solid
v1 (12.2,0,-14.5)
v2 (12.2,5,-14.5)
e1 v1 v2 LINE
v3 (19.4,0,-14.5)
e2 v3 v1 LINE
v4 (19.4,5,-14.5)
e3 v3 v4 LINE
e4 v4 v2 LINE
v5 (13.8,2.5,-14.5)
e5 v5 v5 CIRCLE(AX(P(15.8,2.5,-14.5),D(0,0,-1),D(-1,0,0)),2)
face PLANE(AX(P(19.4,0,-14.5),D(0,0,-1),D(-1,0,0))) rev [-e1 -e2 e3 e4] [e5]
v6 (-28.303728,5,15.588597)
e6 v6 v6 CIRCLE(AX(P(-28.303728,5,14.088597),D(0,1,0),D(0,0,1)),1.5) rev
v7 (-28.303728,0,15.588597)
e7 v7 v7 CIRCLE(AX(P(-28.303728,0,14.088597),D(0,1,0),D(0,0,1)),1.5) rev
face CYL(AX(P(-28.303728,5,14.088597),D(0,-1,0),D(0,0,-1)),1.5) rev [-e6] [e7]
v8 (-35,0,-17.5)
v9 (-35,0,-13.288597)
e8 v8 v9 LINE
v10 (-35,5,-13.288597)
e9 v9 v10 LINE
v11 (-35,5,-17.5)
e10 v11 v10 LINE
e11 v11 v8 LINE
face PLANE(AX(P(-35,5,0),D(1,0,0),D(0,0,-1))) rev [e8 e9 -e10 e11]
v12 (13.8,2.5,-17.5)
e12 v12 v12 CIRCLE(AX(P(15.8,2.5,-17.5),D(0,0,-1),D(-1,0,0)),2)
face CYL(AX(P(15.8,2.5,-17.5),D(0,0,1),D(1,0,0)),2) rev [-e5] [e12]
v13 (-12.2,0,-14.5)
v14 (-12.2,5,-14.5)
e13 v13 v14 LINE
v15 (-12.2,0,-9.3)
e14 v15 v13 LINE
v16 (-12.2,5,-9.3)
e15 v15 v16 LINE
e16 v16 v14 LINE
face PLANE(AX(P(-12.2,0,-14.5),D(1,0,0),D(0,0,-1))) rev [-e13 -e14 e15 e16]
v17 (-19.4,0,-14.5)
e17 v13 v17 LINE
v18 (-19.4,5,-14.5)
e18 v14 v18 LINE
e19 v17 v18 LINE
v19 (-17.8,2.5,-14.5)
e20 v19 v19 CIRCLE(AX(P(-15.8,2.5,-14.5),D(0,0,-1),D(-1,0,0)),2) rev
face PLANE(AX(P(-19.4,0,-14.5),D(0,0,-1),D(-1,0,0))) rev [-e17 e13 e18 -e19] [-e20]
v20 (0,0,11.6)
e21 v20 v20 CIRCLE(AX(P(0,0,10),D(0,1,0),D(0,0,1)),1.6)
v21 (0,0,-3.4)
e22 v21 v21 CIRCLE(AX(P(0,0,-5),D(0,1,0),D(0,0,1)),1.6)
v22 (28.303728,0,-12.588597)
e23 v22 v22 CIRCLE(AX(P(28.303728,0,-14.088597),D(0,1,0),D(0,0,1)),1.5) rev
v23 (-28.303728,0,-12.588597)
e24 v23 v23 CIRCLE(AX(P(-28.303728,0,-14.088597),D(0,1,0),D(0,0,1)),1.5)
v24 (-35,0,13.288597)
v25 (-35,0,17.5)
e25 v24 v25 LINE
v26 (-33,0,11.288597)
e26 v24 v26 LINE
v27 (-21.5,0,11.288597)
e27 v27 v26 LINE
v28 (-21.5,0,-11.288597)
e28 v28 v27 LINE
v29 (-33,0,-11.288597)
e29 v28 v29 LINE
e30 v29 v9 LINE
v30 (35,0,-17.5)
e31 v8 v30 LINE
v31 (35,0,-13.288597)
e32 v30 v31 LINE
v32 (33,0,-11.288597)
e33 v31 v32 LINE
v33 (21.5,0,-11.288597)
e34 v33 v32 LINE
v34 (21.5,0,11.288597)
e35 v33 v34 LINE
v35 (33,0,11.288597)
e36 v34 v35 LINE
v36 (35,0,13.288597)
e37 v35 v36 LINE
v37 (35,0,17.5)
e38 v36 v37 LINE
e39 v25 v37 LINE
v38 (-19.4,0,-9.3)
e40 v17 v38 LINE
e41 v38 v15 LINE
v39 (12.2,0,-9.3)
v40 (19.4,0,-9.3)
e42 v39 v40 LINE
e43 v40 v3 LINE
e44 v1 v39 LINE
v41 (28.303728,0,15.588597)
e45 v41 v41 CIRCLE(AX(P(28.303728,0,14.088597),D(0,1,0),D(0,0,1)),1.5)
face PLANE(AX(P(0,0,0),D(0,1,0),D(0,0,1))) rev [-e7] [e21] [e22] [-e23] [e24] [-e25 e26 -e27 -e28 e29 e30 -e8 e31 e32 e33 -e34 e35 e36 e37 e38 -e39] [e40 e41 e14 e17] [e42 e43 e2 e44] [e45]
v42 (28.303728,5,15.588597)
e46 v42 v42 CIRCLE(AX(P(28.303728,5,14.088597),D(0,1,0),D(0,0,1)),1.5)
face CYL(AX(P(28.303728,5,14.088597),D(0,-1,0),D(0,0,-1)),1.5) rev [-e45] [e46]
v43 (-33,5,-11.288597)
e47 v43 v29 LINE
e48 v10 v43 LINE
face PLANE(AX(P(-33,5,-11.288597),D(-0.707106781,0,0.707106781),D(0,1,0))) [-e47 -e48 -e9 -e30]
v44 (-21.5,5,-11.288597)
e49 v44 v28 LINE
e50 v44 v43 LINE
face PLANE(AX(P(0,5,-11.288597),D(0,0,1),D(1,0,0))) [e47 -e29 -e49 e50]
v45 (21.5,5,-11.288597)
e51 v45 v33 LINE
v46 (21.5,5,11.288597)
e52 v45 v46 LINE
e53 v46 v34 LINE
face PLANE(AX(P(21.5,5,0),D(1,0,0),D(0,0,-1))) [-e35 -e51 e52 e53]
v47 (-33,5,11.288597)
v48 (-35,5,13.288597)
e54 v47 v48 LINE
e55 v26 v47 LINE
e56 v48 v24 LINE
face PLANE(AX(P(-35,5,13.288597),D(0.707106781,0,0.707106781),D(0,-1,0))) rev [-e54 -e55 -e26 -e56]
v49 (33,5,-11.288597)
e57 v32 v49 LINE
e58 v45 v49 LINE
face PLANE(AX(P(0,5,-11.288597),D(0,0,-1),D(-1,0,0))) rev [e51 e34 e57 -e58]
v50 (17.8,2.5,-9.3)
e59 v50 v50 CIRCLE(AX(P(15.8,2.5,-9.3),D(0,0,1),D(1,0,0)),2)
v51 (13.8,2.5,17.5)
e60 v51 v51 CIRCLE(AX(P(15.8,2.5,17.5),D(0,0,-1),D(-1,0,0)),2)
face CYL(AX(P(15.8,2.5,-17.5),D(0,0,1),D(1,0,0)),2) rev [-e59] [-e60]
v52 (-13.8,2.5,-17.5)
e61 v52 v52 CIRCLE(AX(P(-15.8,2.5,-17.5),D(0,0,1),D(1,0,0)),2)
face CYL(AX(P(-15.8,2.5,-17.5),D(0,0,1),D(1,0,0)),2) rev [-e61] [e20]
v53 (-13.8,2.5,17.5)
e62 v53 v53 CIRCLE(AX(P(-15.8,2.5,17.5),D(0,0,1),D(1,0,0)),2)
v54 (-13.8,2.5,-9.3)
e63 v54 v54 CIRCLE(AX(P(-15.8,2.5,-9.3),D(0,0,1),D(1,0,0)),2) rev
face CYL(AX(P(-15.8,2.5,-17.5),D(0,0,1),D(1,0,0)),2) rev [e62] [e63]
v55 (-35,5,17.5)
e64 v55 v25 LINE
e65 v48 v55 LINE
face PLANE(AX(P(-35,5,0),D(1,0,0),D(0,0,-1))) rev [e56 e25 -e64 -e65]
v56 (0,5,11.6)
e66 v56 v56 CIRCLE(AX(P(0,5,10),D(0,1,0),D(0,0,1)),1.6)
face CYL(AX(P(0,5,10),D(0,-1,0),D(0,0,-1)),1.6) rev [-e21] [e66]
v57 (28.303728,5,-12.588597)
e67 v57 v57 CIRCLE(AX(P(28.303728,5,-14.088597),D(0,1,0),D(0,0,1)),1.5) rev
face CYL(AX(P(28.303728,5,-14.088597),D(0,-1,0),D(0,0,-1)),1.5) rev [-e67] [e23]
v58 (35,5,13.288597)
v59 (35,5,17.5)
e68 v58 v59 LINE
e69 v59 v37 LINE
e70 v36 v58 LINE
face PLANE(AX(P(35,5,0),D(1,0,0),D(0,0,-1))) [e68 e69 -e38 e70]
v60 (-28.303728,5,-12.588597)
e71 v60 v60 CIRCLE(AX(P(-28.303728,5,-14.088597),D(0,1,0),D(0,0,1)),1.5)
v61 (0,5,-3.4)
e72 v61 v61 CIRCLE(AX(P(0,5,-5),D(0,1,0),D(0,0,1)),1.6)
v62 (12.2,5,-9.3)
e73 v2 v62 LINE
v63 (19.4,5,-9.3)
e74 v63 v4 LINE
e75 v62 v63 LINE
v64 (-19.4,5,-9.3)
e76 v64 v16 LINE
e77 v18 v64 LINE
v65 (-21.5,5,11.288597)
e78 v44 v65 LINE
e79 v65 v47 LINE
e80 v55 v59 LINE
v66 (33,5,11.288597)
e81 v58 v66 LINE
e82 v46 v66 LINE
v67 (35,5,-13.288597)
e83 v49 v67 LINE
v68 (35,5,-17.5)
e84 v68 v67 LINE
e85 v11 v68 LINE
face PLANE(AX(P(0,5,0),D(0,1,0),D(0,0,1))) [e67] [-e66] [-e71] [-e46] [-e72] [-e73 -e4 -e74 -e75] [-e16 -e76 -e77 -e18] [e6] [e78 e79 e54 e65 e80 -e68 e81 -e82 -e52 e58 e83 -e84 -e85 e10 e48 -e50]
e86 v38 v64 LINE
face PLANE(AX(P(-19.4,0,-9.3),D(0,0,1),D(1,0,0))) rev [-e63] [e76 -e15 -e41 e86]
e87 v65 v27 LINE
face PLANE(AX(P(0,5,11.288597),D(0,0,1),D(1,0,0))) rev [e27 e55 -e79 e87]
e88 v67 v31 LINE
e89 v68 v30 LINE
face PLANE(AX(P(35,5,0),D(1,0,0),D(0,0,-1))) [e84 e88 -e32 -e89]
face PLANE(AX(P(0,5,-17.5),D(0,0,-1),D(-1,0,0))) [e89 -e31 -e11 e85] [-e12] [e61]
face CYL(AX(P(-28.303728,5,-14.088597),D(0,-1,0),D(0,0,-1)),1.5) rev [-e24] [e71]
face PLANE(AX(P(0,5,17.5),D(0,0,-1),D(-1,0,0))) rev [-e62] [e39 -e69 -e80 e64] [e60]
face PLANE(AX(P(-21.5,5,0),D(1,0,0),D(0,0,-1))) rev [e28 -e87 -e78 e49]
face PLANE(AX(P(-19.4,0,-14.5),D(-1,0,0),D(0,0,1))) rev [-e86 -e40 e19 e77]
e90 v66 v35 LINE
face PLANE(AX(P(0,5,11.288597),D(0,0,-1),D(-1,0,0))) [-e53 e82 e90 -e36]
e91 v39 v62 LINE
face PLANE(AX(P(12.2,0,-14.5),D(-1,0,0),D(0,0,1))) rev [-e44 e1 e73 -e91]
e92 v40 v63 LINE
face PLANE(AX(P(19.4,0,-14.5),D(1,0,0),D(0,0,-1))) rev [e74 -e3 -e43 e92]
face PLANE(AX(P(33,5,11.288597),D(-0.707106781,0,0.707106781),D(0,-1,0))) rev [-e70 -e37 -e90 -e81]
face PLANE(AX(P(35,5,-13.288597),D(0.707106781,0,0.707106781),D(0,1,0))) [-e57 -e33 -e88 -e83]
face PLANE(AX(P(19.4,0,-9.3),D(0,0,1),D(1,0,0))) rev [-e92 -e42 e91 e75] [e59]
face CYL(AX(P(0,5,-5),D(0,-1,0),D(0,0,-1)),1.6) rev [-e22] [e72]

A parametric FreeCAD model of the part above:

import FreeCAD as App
import Part
import Sketcher


def edges_at(feature, points):
    """Names of the edges that pass closest to the given points."""
    edges = feature.Shape.Edges
    near = lambda p: min(range(len(edges)), key=lambda i: edges[i].distToShape(Part.Vertex(*p))[0])
    return sorted({f"Edge{near(p) + 1}" for p in points})


def add_polygon(sketch, points):
    """Adds a closed chain of lines whose ends are joined by coincident constraints."""
    first, n = sketch.GeometryCount, len(points)
    for a, b in zip(points, points[1:] + points[:1]):
        sketch.addGeometry(Part.LineSegment(App.Vector(*a, 0), App.Vector(*b, 0)), False)
    for i in range(n):
        sketch.addConstraint(Sketcher.Constraint("Coincident", first + i, 2, first + (i + 1) % n, 1))

doc = App.newDocument("Part")
params = doc.addObject("Spreadsheet::Sheet", "Params")
for row, (alias, value) in enumerate([
    ("sketch1_diameter", "3 mm"),
    ("sketch1_diameter2", "3.2 mm"),
    ("sketch1_width", "70 mm"),
    ("sketch1_width2", "13.5 mm"),
    ("pad1_length", "5 mm"),
    ("chamfer_size", "2 mm"),
    ("sketch2_diameter", "4 mm"),
    ("sketch3_width", "7.2 mm"),
    ("sketch3_height", "5.2 mm"),
], start=1):
    params.set(f"A{row}", alias)
    params.set(f"B{row}", "=" + value)
    params.setAlias(f"B{row}", alias)

body = doc.addObject("PartDesign::Body", "Body")

sketch1 = body.newObject("Sketcher::SketchObject", "Sketch")
sketch1.AttachmentSupport = (doc.getObject("XZ_Plane"), [""])
sketch1.MapMode = "FlatFace"
add_polygon(sketch1, [(35, -17.5), (-35, -17.5), (-35, -11.3), (-21.5, -11.3), (-21.5, 11.3), (-35, 11.3), (-35, 17.5), (35, 17.5), (35, 11.3), (21.5, 11.3), (21.5, -11.3), (35, -11.3)])
sketch1.addGeometry(Part.Circle(App.Vector(-28.3, 14.1, 0), App.Vector(0, 0, 1), 1.5), False)
sketch1.addGeometry(Part.Circle(App.Vector(0, 10, 0), App.Vector(0, 0, 1), 1.6), False)
sketch1.addGeometry(Part.Circle(App.Vector(28.3, 14.1, 0), App.Vector(0, 0, 1), 1.5), False)
sketch1.addGeometry(Part.Circle(App.Vector(-28.3, -14.1, 0), App.Vector(0, 0, 1), 1.5), False)
sketch1.addGeometry(Part.Circle(App.Vector(0, -5, 0), App.Vector(0, 0, 1), 1.6), False)
sketch1.addGeometry(Part.Circle(App.Vector(28.3, -14.1, 0), App.Vector(0, 0, 1), 1.5), False)
sketch1.addConstraint([
    Sketcher.Constraint("Horizontal", 0),
    Sketcher.Constraint("Vertical", 1),
    Sketcher.Constraint("Horizontal", 2),
    Sketcher.Constraint("Vertical", 3),
    Sketcher.Constraint("Horizontal", 4),
    Sketcher.Constraint("Vertical", 5),
    Sketcher.Constraint("Horizontal", 6),
    Sketcher.Constraint("Vertical", 7),
    Sketcher.Constraint("Horizontal", 8),
    Sketcher.Constraint("Vertical", 9),
    Sketcher.Constraint("Horizontal", 10),
    Sketcher.Constraint("Vertical", 11),
    Sketcher.Constraint("Equal", 12, 14),
    Sketcher.Constraint("Equal", 14, 15),
    Sketcher.Constraint("Equal", 13, 16),
    Sketcher.Constraint("Equal", 15, 17),
    Sketcher.Constraint("Symmetric", 14, 3, 15, 3, -1, 1),
    Sketcher.Constraint("Symmetric", 12, 3, 17, 3, -1, 1),
    Sketcher.Constraint("Symmetric", 0, 2, 6, 2, -1, 1),
    Sketcher.Constraint("Symmetric", 2, 2, 8, 2, -1, 1),
    Sketcher.Constraint("Symmetric", 4, 2, 10, 2, -1, 1),
    Sketcher.Constraint("Symmetric", 12, 3, 14, 3, -2),
    Sketcher.Constraint("Symmetric", 4, 2, 7, 2, -2),
    Sketcher.Constraint("PointOnObject", 13, 3, -2),
    Sketcher.Constraint("PointOnObject", 16, 3, -2),
    Sketcher.Constraint("Diameter", 12, 3.0),
    Sketcher.Constraint("Diameter", 13, 3.2),
    Sketcher.Constraint("DistanceX", 0, 2, 0, 1, 70.0),
    Sketcher.Constraint("DistanceX", 2, 1, 2, 2, 13.5),
    Sketcher.Constraint("DistanceY", -1, 1, 13, 3, 10.0),
    Sketcher.Constraint("DistanceY", 16, 3, -1, 1, 5.0),
    Sketcher.Constraint("DistanceY", 0, 2, -1, 1, 17.5),
    Sketcher.Constraint("DistanceY", 15, 3, 1, 2, 2.8),
    Sketcher.Constraint("DistanceY", 1, 1, 1, 2, 6.211403),
    Sketcher.Constraint("DistanceX", 12, 3, -1, 1, 28.303728),
])
sketch1.setExpression("Constraints[37]", "Params.sketch1_diameter")
sketch1.setExpression("Constraints[38]", "Params.sketch1_diameter2")
sketch1.setExpression("Constraints[39]", "Params.sketch1_width")
sketch1.setExpression("Constraints[40]", "Params.sketch1_width2")
pad1 = body.newObject("PartDesign::Pad", "Pad")
pad1.Profile = sketch1
pad1.setExpression("Length", "Params.pad1_length")
pad1.Reversed = True
doc.recompute()

chamfer = body.newObject("PartDesign::Chamfer", "Chamfer")
chamfer.Base = (pad1, edges_at(pad1, [
    (35, 2.5, 11.289),
    (-35, 2.5, 11.289),
    (-35, 2.5, -11.289),
    (35, 2.5, -11.289),
]))
chamfer.setExpression("Size", "Params.chamfer_size")

sketch2 = body.newObject("Sketcher::SketchObject", "Sketch001")
sketch2.AttachmentSupport = (doc.getObject("XY_Plane"), [""])
sketch2.MapMode = "FlatFace"
sketch2.AttachmentOffset = App.Placement(App.Vector(0, 0, 17.5), App.Rotation())
sketch2.addGeometry([
    Part.Circle(App.Vector(-15.8, 2.5, 0), App.Vector(0, 0, 1), 2),
    Part.Circle(App.Vector(15.8, 2.5, 0), App.Vector(0, 0, 1), 2),
], False)
sketch2.addConstraint([
    Sketcher.Constraint("Equal", 0, 1),
    Sketcher.Constraint("Symmetric", 0, 3, 1, 3, -2),
    Sketcher.Constraint("Diameter", 0, 4.0),
    Sketcher.Constraint("DistanceX", 0, 3, -1, 1, 15.8),
    Sketcher.Constraint("DistanceY", -1, 1, 0, 3, 2.5),
])
sketch2.setExpression("Constraints[2]", "Params.sketch2_diameter")
pocket1 = body.newObject("PartDesign::Pocket", "Pocket")
pocket1.Profile = sketch2
pocket1.Type = "ThroughAll"

sketch3 = body.newObject("Sketcher::SketchObject", "Sketch002")
sketch3.AttachmentSupport = (doc.getObject("XZ_Plane"), [""])
sketch3.MapMode = "FlatFace"
sketch3.AttachmentOffset = App.Placement(App.Vector(0, 0, -5), App.Rotation())
add_polygon(sketch3, [(-19, -14), (-19, -9), (-12, -9), (-12, -14)])
add_polygon(sketch3, [(12, -14), (12, -9), (19, -9), (19, -14)])
sketch3.addConstraint([
    Sketcher.Constraint("Vertical", 0),
    Sketcher.Constraint("Horizontal", 1),
    Sketcher.Constraint("Vertical", 2),
    Sketcher.Constraint("Horizontal", 3),
    Sketcher.Constraint("Vertical", 4),
    Sketcher.Constraint("Horizontal", 5),
    Sketcher.Constraint("Vertical", 6),
    Sketcher.Constraint("Horizontal", 7),
    Sketcher.Constraint("Symmetric", 1, 2, 4, 2, -2),
    Sketcher.Constraint("Symmetric", 3, 2, 6, 2, -2),
    Sketcher.Constraint("DistanceX", 1, 1, 1, 2, 7.2),
    Sketcher.Constraint("DistanceY", 0, 1, 0, 2, 5.2),
    Sketcher.Constraint("DistanceX", 0, 2, -1, 1, 19.4),
    Sketcher.Constraint("DistanceY", 0, 2, -1, 1, 9.3),
])
sketch3.setExpression("Constraints[18]", "Params.sketch3_width")
sketch3.setExpression("Constraints[19]", "Params.sketch3_height")
pocket2 = body.newObject("PartDesign::Pocket", "Pocket001")
pocket2.Profile = sketch3
pocket2.Type = "ThroughAll"
pocket2.Reversed = True

doc.recompute()
